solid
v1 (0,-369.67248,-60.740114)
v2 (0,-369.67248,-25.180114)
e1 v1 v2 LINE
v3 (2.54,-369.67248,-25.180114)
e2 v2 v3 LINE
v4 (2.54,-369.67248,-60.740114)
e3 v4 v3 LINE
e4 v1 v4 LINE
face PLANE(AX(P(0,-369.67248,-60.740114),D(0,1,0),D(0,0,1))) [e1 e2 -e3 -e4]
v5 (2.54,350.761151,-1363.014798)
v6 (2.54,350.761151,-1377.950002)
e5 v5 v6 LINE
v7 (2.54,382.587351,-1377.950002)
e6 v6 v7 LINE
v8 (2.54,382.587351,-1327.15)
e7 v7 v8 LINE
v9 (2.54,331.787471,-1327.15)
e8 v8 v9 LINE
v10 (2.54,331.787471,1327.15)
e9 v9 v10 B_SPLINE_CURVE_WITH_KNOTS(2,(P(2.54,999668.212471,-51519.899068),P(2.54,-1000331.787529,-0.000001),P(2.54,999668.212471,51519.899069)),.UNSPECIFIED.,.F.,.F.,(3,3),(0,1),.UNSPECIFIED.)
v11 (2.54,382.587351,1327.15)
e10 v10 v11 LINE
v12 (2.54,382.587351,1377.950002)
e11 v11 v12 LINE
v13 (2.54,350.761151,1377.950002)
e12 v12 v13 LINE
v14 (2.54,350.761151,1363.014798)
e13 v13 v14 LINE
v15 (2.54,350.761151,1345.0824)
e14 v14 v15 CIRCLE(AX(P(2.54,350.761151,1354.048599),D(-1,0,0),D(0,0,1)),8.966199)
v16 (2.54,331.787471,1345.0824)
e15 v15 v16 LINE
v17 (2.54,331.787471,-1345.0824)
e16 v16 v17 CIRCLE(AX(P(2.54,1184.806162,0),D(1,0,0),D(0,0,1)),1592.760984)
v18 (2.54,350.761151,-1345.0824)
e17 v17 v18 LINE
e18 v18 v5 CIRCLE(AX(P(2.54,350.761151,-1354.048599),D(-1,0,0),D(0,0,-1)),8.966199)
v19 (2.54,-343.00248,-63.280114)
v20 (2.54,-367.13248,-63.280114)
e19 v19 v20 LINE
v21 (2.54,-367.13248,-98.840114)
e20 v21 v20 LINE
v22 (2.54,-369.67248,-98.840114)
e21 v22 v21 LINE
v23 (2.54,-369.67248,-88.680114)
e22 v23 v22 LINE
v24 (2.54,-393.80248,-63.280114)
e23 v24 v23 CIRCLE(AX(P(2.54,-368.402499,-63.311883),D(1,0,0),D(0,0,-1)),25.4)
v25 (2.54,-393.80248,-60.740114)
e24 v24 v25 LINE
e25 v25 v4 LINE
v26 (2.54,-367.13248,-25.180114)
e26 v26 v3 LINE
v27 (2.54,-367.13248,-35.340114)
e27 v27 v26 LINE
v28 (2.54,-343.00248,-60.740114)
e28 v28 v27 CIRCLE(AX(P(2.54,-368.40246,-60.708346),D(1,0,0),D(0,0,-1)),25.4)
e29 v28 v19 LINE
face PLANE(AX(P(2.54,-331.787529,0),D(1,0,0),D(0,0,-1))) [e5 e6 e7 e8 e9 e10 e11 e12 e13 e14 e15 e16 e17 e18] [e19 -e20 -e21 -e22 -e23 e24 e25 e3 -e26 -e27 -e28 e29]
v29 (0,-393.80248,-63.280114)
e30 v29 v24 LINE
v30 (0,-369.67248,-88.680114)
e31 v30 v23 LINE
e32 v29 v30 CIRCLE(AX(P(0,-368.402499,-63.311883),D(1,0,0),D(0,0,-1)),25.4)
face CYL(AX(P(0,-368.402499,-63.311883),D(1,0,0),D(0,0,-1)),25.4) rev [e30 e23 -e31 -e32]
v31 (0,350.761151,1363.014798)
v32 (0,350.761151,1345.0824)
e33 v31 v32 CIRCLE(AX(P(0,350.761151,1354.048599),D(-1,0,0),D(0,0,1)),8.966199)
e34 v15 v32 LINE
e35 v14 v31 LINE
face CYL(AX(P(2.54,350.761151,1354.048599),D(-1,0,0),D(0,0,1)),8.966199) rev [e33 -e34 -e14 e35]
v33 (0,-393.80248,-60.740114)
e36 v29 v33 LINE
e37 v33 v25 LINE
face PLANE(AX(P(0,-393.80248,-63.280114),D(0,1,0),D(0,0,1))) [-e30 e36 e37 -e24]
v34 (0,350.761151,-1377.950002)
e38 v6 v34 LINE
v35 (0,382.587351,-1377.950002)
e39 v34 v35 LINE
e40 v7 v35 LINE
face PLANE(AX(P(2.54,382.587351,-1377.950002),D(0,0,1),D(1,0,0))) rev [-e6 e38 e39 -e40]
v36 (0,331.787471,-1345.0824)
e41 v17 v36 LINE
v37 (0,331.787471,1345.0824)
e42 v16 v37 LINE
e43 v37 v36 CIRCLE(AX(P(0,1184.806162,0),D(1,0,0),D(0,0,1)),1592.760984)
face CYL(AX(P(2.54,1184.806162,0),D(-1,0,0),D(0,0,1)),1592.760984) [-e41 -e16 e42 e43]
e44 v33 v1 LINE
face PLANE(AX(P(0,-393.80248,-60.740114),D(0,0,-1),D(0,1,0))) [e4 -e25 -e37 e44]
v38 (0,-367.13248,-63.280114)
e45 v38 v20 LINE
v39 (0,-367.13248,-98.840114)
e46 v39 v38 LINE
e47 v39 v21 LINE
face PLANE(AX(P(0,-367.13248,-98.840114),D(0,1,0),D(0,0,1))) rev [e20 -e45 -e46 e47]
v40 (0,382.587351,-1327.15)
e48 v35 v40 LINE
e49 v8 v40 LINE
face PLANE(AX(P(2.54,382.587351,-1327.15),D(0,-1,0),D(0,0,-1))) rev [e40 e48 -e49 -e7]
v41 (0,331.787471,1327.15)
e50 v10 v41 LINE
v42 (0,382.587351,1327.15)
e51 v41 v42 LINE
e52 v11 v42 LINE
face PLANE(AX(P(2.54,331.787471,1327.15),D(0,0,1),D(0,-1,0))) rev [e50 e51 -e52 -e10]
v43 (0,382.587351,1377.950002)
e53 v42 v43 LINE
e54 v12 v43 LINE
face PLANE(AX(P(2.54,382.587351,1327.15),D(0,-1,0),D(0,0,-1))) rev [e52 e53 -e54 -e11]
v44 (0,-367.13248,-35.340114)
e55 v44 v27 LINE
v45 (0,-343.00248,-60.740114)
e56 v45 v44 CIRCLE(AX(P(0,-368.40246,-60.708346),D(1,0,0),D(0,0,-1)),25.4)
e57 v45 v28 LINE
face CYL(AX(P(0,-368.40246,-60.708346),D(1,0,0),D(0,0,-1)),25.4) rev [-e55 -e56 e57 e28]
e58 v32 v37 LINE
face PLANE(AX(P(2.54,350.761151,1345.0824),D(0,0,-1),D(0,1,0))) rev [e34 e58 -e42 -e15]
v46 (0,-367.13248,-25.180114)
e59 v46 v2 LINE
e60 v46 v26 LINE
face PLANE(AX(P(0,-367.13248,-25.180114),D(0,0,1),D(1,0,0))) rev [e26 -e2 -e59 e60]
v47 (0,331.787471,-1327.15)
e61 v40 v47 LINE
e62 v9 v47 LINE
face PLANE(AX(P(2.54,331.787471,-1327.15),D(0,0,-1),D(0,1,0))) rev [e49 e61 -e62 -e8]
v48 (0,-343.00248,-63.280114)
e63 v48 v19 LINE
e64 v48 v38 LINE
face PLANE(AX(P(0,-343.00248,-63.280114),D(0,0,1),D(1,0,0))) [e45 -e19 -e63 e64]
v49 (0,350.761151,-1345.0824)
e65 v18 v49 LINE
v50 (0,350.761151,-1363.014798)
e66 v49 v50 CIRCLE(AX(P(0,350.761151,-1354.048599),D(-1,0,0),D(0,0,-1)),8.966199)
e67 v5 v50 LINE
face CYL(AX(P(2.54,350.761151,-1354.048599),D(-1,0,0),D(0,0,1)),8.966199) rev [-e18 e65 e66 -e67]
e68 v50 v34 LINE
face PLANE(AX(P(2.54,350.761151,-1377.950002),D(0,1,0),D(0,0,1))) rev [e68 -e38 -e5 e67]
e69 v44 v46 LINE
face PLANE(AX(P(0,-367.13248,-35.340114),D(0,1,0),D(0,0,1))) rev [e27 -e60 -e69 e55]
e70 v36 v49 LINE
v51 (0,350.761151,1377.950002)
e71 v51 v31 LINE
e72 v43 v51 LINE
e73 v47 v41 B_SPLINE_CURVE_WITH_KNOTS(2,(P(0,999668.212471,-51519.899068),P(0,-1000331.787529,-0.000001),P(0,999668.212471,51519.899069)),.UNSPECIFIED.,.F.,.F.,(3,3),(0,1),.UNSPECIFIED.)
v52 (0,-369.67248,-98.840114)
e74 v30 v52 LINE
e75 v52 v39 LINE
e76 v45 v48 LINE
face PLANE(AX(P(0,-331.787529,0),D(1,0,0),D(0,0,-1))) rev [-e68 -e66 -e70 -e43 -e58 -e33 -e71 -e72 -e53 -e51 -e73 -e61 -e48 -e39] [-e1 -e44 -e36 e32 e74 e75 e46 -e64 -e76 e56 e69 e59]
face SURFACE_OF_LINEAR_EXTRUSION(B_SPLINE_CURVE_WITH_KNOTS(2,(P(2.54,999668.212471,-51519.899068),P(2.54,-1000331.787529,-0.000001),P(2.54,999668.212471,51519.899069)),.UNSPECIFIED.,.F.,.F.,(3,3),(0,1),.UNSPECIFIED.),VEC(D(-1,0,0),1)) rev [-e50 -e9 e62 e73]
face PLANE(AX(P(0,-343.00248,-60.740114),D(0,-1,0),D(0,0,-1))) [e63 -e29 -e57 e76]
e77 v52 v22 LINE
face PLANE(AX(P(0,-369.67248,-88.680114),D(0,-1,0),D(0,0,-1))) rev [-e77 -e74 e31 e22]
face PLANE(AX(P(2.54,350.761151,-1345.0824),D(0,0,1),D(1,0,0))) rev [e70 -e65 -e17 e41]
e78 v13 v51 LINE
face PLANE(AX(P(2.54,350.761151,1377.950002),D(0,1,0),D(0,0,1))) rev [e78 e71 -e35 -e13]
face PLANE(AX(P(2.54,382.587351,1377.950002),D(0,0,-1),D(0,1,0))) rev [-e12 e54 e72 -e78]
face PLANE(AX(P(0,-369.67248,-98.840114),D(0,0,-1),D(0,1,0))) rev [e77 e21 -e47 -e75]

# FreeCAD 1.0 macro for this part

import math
import FreeCAD as App
import Part
import Sketcher
Q = App.Units.Quantity

doc = App.newDocument("Part")
params = doc.addObject("Spreadsheet::Sheet", "Params")
for row, (alias, value) in enumerate([
    ("sketch1_height", "2.0000001 in"),
    ("sketch1_radius", "0.353 in"),
    ("sketch1_width", "1.253 in"),
    ("sketch1_height2", "0.5880002 in"),
    ("pad1_length", "0.1 in"),
    ("sketch2_radius", "1 in"),
    ("sketch2_width", "0.1 in"),
    ("sketch2_height", "0.4 in"),
    ("sketch2_height2", "1.4 in"),
    ("sketch2_width2", "0.95 in"),
], start=1):
    params.set(f"A{row}", alias)
    params.set(f"B{row}", "=" + value)
    params.setAlias(f"B{row}", alias)

body = doc.addObject("PartDesign::Body", "Body")

# Sketch on YZ plane
sketch1 = doc.addObject("Sketcher::SketchObject", "Sketch")
body.addObject(sketch1)
sketch1.AttachmentSupport = (doc.YZ_Plane, [""])
sketch1.MapMode = "FlatFace"
sketch1.addGeometry(Part.LineSegment(App.Vector(382.587351, -1327.15, 0), App.Vector(331.787471, -1327.15, 0)), False)
sketch1.addGeometry(Part.BSplineCurve([App.Vector(331.787471, -1327.15, 0), App.Vector(-995.362529, 0, 0), App.Vector(331.787471, 1327.15, 0)], [3, 3], [0, 1], False, 2, [1, 1, 1], False), False)
sketch1.addGeometry(Part.LineSegment(App.Vector(331.787471, 1327.15, 0), App.Vector(382.587351, 1327.15, 0)), False)
sketch1.addGeometry(Part.LineSegment(App.Vector(382.587351, 1327.15, 0), App.Vector(382.587351, 1377.950002, 0)), False)
sketch1.addGeometry(Part.LineSegment(App.Vector(382.587351, 1377.950002, 0), App.Vector(350.761151, 1377.950002, 0)), False)
sketch1.addGeometry(Part.LineSegment(App.Vector(350.761151, 1377.950002, 0), App.Vector(350.761151, 1363.014798, 0)), False)
sketch1.addGeometry(Part.ArcOfCircle(Part.Circle(App.Vector(350.761151, 1354.048599, 0), App.Vector(0, 0, 1), 8.966199), math.radians(-90), math.radians(90)), False)
sketch1.addGeometry(Part.LineSegment(App.Vector(350.761151, 1345.0824, 0), App.Vector(331.787471, 1345.0824, 0)), False)
sketch1.addGeometry(Part.ArcOfCircle(Part.Circle(App.Vector(1184.806162, 0, 0), App.Vector(0, 0, 1), 1592.760984), math.radians(122.381881), math.radians(237.618119)), False)
sketch1.addGeometry(Part.LineSegment(App.Vector(331.787471, -1345.0824, 0), App.Vector(350.761151, -1345.0824, 0)), False)
sketch1.addGeometry(Part.ArcOfCircle(Part.Circle(App.Vector(350.761151, -1354.048599, 0), App.Vector(0, 0, 1), 8.966199), math.radians(-90), math.radians(90)), False)
sketch1.addGeometry(Part.LineSegment(App.Vector(350.761151, -1363.014798, 0), App.Vector(350.761151, -1377.950002, 0)), False)
sketch1.addGeometry(Part.LineSegment(App.Vector(350.761151, -1377.950002, 0), App.Vector(382.587351, -1377.950002, 0)), False)
sketch1.addGeometry(Part.LineSegment(App.Vector(382.587351, -1377.950002, 0), App.Vector(382.587351, -1327.15, 0)), False)
sketch1.addConstraint(Sketcher.Constraint("Block", 1))
sketch1.addConstraint(Sketcher.Constraint("Coincident", 0, 2, 1, 1))
sketch1.addConstraint(Sketcher.Constraint("Coincident", 1, 2, 2, 1))
sketch1.addConstraint(Sketcher.Constraint("Coincident", 2, 2, 3, 1))
sketch1.addConstraint(Sketcher.Constraint("Coincident", 3, 2, 4, 1))
sketch1.addConstraint(Sketcher.Constraint("Coincident", 4, 2, 5, 1))
sketch1.addConstraint(Sketcher.Constraint("Coincident", 5, 2, 6, 2))
sketch1.addConstraint(Sketcher.Constraint("Tangent", 6, 1, 7, 1))
sketch1.addConstraint(Sketcher.Constraint("Coincident", 7, 2, 8, 1))
sketch1.addConstraint(Sketcher.Constraint("Coincident", 8, 2, 9, 1))
sketch1.addConstraint(Sketcher.Constraint("Tangent", 9, 2, 10, 2))
sketch1.addConstraint(Sketcher.Constraint("Coincident", 10, 1, 11, 1))
sketch1.addConstraint(Sketcher.Constraint("Coincident", 11, 2, 12, 1))
sketch1.addConstraint(Sketcher.Constraint("Coincident", 12, 2, 13, 1))
sketch1.addConstraint(Sketcher.Constraint("Coincident", 13, 2, 0, 1))
sketch1.addConstraint(Sketcher.Constraint("Horizontal", 0))
sketch1.addConstraint(Sketcher.Constraint("Horizontal", 2))
sketch1.addConstraint(Sketcher.Constraint("Vertical", 3))
sketch1.addConstraint(Sketcher.Constraint("Horizontal", 4))
sketch1.addConstraint(Sketcher.Constraint("Vertical", 5))
sketch1.addConstraint(Sketcher.Constraint("Horizontal", 7))
sketch1.addConstraint(Sketcher.Constraint("Horizontal", 9))
sketch1.addConstraint(Sketcher.Constraint("Vertical", 11))
sketch1.addConstraint(Sketcher.Constraint("Horizontal", 12))
sketch1.addConstraint(Sketcher.Constraint("Vertical", 13))
sketch1.addConstraint(Sketcher.Constraint("Equal", 6, 10))
sketch1.addConstraint(Sketcher.Constraint("Symmetric", 6, 3, 10, 3, -1))
sketch1.addConstraint(Sketcher.Constraint("Symmetric", 4, 2, 11, 2, -1))
sketch1.addConstraint(Sketcher.Constraint("PointOnObject", 8, 3, -1))
sketch1.addConstraint(Sketcher.Constraint("Vertical", 10, 3, 4, 2))
sketch1.addConstraint(Sketcher.Constraint("Vertical", 0, 2, 7, 2))
sketch1.addConstraint(Sketcher.Constraint("Vertical", 3, 2, 12, 2))
sketch1.addConstraint(Sketcher.Constraint("DistanceY", 3, 1, 3, 2, Q("2.0000001 in")))
sketch1.addConstraint(Sketcher.Constraint("Radius", 6, Q("0.353 in")))
sketch1.addConstraint(Sketcher.Constraint("DistanceX", 4, 2, 4, 1, Q("1.253 in")))
sketch1.addConstraint(Sketcher.Constraint("DistanceY", 5, 2, 5, 1, Q("0.5880002 in")))
sketch1.addConstraint(Sketcher.Constraint("Radius", 8, 1592.760984))
sketch1.addConstraint(Sketcher.Constraint("DistanceX", 0, 2, 0, 1, 50.79988))
sketch1.setExpression("Constraints[32]", "Params.sketch1_height")
sketch1.setExpression("Constraints[33]", "Params.sketch1_radius")
sketch1.setExpression("Constraints[34]", "Params.sketch1_width")
sketch1.setExpression("Constraints[35]", "Params.sketch1_height2")
pad1 = doc.addObject("PartDesign::Pad", "Pad")
body.addObject(pad1)
pad1.Profile = sketch1
pad1.setExpression("Length", "Params.pad1_length")

# Sketch on YZ plane
sketch2 = doc.addObject("Sketcher::SketchObject", "Sketch001")
body.addObject(sketch2)
sketch2.AttachmentSupport = (doc.YZ_Plane, [""])
sketch2.MapMode = "FlatFace"
sketch2.AttachmentOffset = App.Placement(App.Vector(0, 0, 0.1 * 25.4), App.Rotation())
sketch2.addGeometry(Part.LineSegment(App.Vector(-367.1, -63.3, 0), App.Vector(-343, -63.3, 0)), False)
sketch2.addGeometry(Part.LineSegment(App.Vector(-343, -63.3, 0), App.Vector(-343, -60.7, 0)), False)
sketch2.addGeometry(Part.ArcOfCircle(Part.Circle(App.Vector(-368.4, -60.7, 0), App.Vector(0, 0, 1), 25.4), math.radians(0), math.radians(87)), False)
sketch2.addGeometry(Part.LineSegment(App.Vector(-367.1, -35.3, 0), App.Vector(-367.1, -25.2, 0)), False)
sketch2.addGeometry(Part.LineSegment(App.Vector(-367.1, -25.2, 0), App.Vector(-369.7, -25.2, 0)), False)
sketch2.addGeometry(Part.LineSegment(App.Vector(-369.7, -25.2, 0), App.Vector(-369.7, -60.7, 0)), False)
sketch2.addGeometry(Part.LineSegment(App.Vector(-369.7, -60.7, 0), App.Vector(-393.8, -60.7, 0)), False)
sketch2.addGeometry(Part.LineSegment(App.Vector(-393.8, -60.7, 0), App.Vector(-393.8, -63.3, 0)), False)
sketch2.addGeometry(Part.ArcOfCircle(Part.Circle(App.Vector(-368.4, -63.3, 0), App.Vector(0, 0, 1), 25.4), math.radians(180), math.radians(267)), False)
sketch2.addGeometry(Part.LineSegment(App.Vector(-369.7, -88.7, 0), App.Vector(-369.7, -98.8, 0)), False)
sketch2.addGeometry(Part.LineSegment(App.Vector(-369.7, -98.8, 0), App.Vector(-367.1, -98.8, 0)), False)
sketch2.addGeometry(Part.LineSegment(App.Vector(-367.1, -98.8, 0), App.Vector(-367.1, -63.3, 0)), False)
sketch2.addConstraint(Sketcher.Constraint("Coincident", 0, 2, 1, 1))
sketch2.addConstraint(Sketcher.Constraint("Coincident", 1, 2, 2, 1))
sketch2.addConstraint(Sketcher.Constraint("Coincident", 2, 2, 3, 1))
sketch2.addConstraint(Sketcher.Constraint("Coincident", 3, 2, 4, 1))
sketch2.addConstraint(Sketcher.Constraint("Coincident", 4, 2, 5, 1))
sketch2.addConstraint(Sketcher.Constraint("Coincident", 5, 2, 6, 1))
sketch2.addConstraint(Sketcher.Constraint("Coincident", 6, 2, 7, 1))
sketch2.addConstraint(Sketcher.Constraint("Coincident", 7, 2, 8, 1))
sketch2.addConstraint(Sketcher.Constraint("Coincident", 8, 2, 9, 1))
sketch2.addConstraint(Sketcher.Constraint("Coincident", 9, 2, 10, 1))
sketch2.addConstraint(Sketcher.Constraint("Coincident", 10, 2, 11, 1))
sketch2.addConstraint(Sketcher.Constraint("Coincident", 11, 2, 0, 1))
sketch2.addConstraint(Sketcher.Constraint("Horizontal", 0))
sketch2.addConstraint(Sketcher.Constraint("Vertical", 1))
sketch2.addConstraint(Sketcher.Constraint("Vertical", 3))
sketch2.addConstraint(Sketcher.Constraint("Horizontal", 4))
sketch2.addConstraint(Sketcher.Constraint("Vertical", 5))
sketch2.addConstraint(Sketcher.Constraint("Horizontal", 6))
sketch2.addConstraint(Sketcher.Constraint("Vertical", 7))
sketch2.addConstraint(Sketcher.Constraint("Vertical", 9))
sketch2.addConstraint(Sketcher.Constraint("Horizontal", 10))
sketch2.addConstraint(Sketcher.Constraint("Vertical", 11))
sketch2.addConstraint(Sketcher.Constraint("Equal", 2, 8))
sketch2.addConstraint(Sketcher.Constraint("Horizontal", 1, 2, 5, 2))
sketch2.addConstraint(Sketcher.Constraint("Horizontal", 0, 2, 7, 2))
sketch2.addConstraint(Sketcher.Constraint("Vertical", 5, 2, 8, 2))
sketch2.addConstraint(Sketcher.Constraint("Vertical", 3, 2, 10, 2))
sketch2.addConstraint(Sketcher.Constraint("Equal", 0, 6))
sketch2.addConstraint(Sketcher.Constraint("Equal", 10, 1))
sketch2.addConstraint(Sketcher.Constraint("Equal", 3, 9))
sketch2.addConstraint(Sketcher.Constraint("Equal", 5, 11))
sketch2.addConstraint(Sketcher.Constraint("Radius", 2, Q("1 in")))
sketch2.addConstraint(Sketcher.Constraint("DistanceX", 4, 2, 4, 1, Q("0.1 in")))
sketch2.addConstraint(Sketcher.Constraint("DistanceY", 3, 1, 3, 2, Q("0.4 in")))
sketch2.addConstraint(Sketcher.Constraint("DistanceY", 5, 2, 5, 1, Q("1.4 in")))
sketch2.addConstraint(Sketcher.Constraint("DistanceX", 0, 1, 0, 2, Q("0.95 in")))
sketch2.addConstraint(Sketcher.Constraint("DistanceX", 8, 3, -1, 1, 368.402499))
sketch2.addConstraint(Sketcher.Constraint("DistanceY", 2, 3, -1, 1, 60.708346))
sketch2.setExpression("Constraints[31]", "Params.sketch2_radius")
sketch2.setExpression("Constraints[32]", "Params.sketch2_width")
sketch2.setExpression("Constraints[33]", "Params.sketch2_height")
sketch2.setExpression("Constraints[34]", "Params.sketch2_height2")
sketch2.setExpression("Constraints[35]", "Params.sketch2_width2")
pocket1 = doc.addObject("PartDesign::Pocket", "Pocket")
body.addObject(pocket1)
pocket1.Profile = sketch2
pocket1.Type = "ThroughAll"

doc.recompute()
